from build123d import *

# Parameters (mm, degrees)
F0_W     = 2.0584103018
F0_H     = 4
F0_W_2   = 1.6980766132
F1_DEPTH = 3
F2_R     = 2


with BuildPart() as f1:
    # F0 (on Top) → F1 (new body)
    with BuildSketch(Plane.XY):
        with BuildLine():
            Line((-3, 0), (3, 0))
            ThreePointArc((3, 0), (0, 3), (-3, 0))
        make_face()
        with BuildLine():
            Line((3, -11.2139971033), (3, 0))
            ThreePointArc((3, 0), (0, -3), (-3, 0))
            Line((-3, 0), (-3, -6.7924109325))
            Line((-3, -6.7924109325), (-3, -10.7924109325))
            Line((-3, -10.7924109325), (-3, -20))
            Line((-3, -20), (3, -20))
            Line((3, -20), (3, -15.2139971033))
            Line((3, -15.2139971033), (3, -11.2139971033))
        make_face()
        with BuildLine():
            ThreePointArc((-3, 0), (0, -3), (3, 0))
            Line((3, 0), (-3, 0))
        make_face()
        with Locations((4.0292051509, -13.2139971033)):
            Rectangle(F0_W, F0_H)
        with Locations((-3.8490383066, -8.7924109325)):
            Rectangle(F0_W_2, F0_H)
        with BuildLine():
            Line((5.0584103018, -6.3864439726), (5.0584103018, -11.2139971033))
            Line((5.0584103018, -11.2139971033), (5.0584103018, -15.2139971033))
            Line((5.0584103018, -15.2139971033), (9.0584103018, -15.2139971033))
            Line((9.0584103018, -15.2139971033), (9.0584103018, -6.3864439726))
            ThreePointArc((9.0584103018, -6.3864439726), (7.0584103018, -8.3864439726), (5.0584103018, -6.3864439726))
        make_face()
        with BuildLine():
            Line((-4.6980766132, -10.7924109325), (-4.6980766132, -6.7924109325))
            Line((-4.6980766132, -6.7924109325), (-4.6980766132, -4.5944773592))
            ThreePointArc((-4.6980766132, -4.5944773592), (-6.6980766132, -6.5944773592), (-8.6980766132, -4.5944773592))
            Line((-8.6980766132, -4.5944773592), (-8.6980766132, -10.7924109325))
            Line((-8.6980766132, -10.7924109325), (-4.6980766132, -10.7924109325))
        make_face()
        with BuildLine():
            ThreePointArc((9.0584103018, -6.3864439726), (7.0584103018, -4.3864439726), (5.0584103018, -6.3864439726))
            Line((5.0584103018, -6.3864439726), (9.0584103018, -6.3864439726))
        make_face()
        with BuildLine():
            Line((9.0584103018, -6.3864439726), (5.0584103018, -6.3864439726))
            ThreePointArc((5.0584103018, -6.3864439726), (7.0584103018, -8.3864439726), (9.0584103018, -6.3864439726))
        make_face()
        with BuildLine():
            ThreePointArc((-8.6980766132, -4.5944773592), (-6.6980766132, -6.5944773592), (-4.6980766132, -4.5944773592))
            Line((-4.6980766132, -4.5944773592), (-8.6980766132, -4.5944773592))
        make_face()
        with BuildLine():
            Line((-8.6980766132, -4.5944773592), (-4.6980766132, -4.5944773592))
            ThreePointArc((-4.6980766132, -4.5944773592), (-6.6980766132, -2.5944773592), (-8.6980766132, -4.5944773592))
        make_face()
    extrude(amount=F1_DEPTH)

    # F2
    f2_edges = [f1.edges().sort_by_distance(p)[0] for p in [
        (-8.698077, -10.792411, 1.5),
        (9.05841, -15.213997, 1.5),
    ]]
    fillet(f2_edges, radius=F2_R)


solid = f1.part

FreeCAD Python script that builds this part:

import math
import FreeCAD as App
import Part
import Sketcher

V = App.Vector
Q = App.Units.Quantity


def edges_at(feature, points):
    """Names of the edges that pass closest to the given points."""
    edges = feature.Shape.Edges
    near = lambda p: min(range(len(edges)), key=lambda i: edges[i].distToShape(Part.Vertex(*p))[0])
    return sorted({f"Edge{near(p) + 1}" for p in points})

doc = App.newDocument("Part")
body = doc.addObject("PartDesign::Body", "Body")

sketch1 = body.newObject("Sketcher::SketchObject", "Sketch")
sketch1.AttachmentSupport = (doc.getObject("XY_Plane"), [""])
sketch1.MapMode = "FlatFace"
sketch1.addGeometry([
    Part.ArcOfCircle(Part.Circle(V(0, 0, 0), V(0, 0, 1), 3), math.radians(0), math.radians(180)),
    Part.LineSegment(V(-3, 0, 0), V(-3, -6.792411, 0)),
    Part.LineSegment(V(-3, -6.792411, 0), V(-4.698077, -6.792411, 0)),
    Part.LineSegment(V(-4.698077, -6.792411, 0), V(-4.698077, -4.594477, 0)),
    Part.ArcOfCircle(Part.Circle(V(-6.698077, -4.594477, 0), V(0, 0, 1), 2), math.radians(0), math.radians(180)),
    Part.LineSegment(V(-8.698077, -4.594477, 0), V(-8.698077, -10.792411, 0)),
    Part.LineSegment(V(-8.698077, -10.792411, 0), V(-3, -10.792411, 0)),
    Part.LineSegment(V(-3, -10.792411, 0), V(-3, -20, 0)),
    Part.LineSegment(V(-3, -20, 0), V(3, -20, 0)),
    Part.LineSegment(V(3, -20, 0), V(3, -15.213997, 0)),
    Part.LineSegment(V(3, -15.213997, 0), V(9.05841, -15.213997, 0)),
    Part.LineSegment(V(9.05841, -15.213997, 0), V(9.05841, -6.386444, 0)),
    Part.ArcOfCircle(Part.Circle(V(7.05841, -6.386444, 0), V(0, 0, 1), 2), math.radians(0), math.radians(180)),
    Part.LineSegment(V(5.05841, -6.386444, 0), V(5.05841, -11.213997, 0)),
    Part.LineSegment(V(5.05841, -11.213997, 0), V(3, -11.213997, 0)),
    Part.LineSegment(V(3, -11.213997, 0), V(3, 0, 0)),
], False)
sketch1.addConstraint([
    Sketcher.Constraint("Tangent", 0, 2, 1, 1),
    Sketcher.Constraint("Coincident", 1, 2, 2, 1),
    Sketcher.Constraint("Coincident", 2, 2, 3, 1),
    Sketcher.Constraint("Tangent", 3, 2, 4, 1),
    Sketcher.Constraint("Tangent", 4, 2, 5, 1),
    Sketcher.Constraint("Coincident", 5, 2, 6, 1),
    Sketcher.Constraint("Coincident", 6, 2, 7, 1),
    Sketcher.Constraint("Coincident", 7, 2, 8, 1),
    Sketcher.Constraint("Coincident", 8, 2, 9, 1),
    Sketcher.Constraint("Coincident", 9, 2, 10, 1),
    Sketcher.Constraint("Coincident", 10, 2, 11, 1),
    Sketcher.Constraint("Tangent", 11, 2, 12, 1),
    Sketcher.Constraint("Tangent", 12, 2, 13, 1),
    Sketcher.Constraint("Coincident", 13, 2, 14, 1),
    Sketcher.Constraint("Coincident", 14, 2, 15, 1),
    Sketcher.Constraint("Tangent", 15, 2, 0, 1),
    Sketcher.Constraint("Vertical", 1),
    Sketcher.Constraint("Horizontal", 2),
    Sketcher.Constraint("Vertical", 3),
    Sketcher.Constraint("Vertical", 5),
    Sketcher.Constraint("Horizontal", 6),
    Sketcher.Constraint("Vertical", 7),
    Sketcher.Constraint("Horizontal", 8),
    Sketcher.Constraint("Vertical", 9),
    Sketcher.Constraint("Horizontal", 10),
    Sketcher.Constraint("Vertical", 11),
    Sketcher.Constraint("Vertical", 13),
    Sketcher.Constraint("Horizontal", 14),
    Sketcher.Constraint("Vertical", 15),
    Sketcher.Constraint("Coincident", 0, 3, -1, 1),
    Sketcher.Constraint("Equal", 4, 12),
    Sketcher.Constraint("Vertical", 1, 2, 6, 2),
    Sketcher.Constraint("Vertical", 9, 2, 14, 2),
    Sketcher.Constraint("Radius", 0, Q("3 mm")),
    Sketcher.Constraint("Radius", 4, Q("2 mm")),
    Sketcher.Constraint("DistanceY", 7, 2, -1, 1, Q("20 mm")),
    Sketcher.Constraint("DistanceY", 5, 2, 2, 2, Q("4 mm")),
    Sketcher.Constraint("DistanceY", 9, 2, 13, 2, Q("4 mm")),
    Sketcher.Constraint("DistanceX", 10, 1, 10, 2, Q("6.05841 mm")),
    Sketcher.Constraint("DistanceY", 1, 2, 1, 1, Q("6.792411 mm")),
    Sketcher.Constraint("DistanceX", 2, 2, 2, 1, Q("1.698077 mm")),
    Sketcher.Constraint("DistanceY", 3, 1, 3, 2, Q("2.197934 mm")),
    Sketcher.Constraint("DistanceY", 9, 1, 9, 2, Q("4.786003 mm")),
    Sketcher.Constraint("DistanceY", 11, 1, 11, 2, Q("8.827553 mm")),
])
pad1 = body.newObject("PartDesign::Pad", "Pad")
pad1.Profile = sketch1
pad1.Length = 3
doc.recompute()

fillet = body.newObject("PartDesign::Fillet", "Fillet")
fillet.Base = (pad1, edges_at(pad1, [(-8.698, -10.792, 1.5), (9.058, -15.214, 1.5)]))
fillet.Radius = 2

doc.recompute()
